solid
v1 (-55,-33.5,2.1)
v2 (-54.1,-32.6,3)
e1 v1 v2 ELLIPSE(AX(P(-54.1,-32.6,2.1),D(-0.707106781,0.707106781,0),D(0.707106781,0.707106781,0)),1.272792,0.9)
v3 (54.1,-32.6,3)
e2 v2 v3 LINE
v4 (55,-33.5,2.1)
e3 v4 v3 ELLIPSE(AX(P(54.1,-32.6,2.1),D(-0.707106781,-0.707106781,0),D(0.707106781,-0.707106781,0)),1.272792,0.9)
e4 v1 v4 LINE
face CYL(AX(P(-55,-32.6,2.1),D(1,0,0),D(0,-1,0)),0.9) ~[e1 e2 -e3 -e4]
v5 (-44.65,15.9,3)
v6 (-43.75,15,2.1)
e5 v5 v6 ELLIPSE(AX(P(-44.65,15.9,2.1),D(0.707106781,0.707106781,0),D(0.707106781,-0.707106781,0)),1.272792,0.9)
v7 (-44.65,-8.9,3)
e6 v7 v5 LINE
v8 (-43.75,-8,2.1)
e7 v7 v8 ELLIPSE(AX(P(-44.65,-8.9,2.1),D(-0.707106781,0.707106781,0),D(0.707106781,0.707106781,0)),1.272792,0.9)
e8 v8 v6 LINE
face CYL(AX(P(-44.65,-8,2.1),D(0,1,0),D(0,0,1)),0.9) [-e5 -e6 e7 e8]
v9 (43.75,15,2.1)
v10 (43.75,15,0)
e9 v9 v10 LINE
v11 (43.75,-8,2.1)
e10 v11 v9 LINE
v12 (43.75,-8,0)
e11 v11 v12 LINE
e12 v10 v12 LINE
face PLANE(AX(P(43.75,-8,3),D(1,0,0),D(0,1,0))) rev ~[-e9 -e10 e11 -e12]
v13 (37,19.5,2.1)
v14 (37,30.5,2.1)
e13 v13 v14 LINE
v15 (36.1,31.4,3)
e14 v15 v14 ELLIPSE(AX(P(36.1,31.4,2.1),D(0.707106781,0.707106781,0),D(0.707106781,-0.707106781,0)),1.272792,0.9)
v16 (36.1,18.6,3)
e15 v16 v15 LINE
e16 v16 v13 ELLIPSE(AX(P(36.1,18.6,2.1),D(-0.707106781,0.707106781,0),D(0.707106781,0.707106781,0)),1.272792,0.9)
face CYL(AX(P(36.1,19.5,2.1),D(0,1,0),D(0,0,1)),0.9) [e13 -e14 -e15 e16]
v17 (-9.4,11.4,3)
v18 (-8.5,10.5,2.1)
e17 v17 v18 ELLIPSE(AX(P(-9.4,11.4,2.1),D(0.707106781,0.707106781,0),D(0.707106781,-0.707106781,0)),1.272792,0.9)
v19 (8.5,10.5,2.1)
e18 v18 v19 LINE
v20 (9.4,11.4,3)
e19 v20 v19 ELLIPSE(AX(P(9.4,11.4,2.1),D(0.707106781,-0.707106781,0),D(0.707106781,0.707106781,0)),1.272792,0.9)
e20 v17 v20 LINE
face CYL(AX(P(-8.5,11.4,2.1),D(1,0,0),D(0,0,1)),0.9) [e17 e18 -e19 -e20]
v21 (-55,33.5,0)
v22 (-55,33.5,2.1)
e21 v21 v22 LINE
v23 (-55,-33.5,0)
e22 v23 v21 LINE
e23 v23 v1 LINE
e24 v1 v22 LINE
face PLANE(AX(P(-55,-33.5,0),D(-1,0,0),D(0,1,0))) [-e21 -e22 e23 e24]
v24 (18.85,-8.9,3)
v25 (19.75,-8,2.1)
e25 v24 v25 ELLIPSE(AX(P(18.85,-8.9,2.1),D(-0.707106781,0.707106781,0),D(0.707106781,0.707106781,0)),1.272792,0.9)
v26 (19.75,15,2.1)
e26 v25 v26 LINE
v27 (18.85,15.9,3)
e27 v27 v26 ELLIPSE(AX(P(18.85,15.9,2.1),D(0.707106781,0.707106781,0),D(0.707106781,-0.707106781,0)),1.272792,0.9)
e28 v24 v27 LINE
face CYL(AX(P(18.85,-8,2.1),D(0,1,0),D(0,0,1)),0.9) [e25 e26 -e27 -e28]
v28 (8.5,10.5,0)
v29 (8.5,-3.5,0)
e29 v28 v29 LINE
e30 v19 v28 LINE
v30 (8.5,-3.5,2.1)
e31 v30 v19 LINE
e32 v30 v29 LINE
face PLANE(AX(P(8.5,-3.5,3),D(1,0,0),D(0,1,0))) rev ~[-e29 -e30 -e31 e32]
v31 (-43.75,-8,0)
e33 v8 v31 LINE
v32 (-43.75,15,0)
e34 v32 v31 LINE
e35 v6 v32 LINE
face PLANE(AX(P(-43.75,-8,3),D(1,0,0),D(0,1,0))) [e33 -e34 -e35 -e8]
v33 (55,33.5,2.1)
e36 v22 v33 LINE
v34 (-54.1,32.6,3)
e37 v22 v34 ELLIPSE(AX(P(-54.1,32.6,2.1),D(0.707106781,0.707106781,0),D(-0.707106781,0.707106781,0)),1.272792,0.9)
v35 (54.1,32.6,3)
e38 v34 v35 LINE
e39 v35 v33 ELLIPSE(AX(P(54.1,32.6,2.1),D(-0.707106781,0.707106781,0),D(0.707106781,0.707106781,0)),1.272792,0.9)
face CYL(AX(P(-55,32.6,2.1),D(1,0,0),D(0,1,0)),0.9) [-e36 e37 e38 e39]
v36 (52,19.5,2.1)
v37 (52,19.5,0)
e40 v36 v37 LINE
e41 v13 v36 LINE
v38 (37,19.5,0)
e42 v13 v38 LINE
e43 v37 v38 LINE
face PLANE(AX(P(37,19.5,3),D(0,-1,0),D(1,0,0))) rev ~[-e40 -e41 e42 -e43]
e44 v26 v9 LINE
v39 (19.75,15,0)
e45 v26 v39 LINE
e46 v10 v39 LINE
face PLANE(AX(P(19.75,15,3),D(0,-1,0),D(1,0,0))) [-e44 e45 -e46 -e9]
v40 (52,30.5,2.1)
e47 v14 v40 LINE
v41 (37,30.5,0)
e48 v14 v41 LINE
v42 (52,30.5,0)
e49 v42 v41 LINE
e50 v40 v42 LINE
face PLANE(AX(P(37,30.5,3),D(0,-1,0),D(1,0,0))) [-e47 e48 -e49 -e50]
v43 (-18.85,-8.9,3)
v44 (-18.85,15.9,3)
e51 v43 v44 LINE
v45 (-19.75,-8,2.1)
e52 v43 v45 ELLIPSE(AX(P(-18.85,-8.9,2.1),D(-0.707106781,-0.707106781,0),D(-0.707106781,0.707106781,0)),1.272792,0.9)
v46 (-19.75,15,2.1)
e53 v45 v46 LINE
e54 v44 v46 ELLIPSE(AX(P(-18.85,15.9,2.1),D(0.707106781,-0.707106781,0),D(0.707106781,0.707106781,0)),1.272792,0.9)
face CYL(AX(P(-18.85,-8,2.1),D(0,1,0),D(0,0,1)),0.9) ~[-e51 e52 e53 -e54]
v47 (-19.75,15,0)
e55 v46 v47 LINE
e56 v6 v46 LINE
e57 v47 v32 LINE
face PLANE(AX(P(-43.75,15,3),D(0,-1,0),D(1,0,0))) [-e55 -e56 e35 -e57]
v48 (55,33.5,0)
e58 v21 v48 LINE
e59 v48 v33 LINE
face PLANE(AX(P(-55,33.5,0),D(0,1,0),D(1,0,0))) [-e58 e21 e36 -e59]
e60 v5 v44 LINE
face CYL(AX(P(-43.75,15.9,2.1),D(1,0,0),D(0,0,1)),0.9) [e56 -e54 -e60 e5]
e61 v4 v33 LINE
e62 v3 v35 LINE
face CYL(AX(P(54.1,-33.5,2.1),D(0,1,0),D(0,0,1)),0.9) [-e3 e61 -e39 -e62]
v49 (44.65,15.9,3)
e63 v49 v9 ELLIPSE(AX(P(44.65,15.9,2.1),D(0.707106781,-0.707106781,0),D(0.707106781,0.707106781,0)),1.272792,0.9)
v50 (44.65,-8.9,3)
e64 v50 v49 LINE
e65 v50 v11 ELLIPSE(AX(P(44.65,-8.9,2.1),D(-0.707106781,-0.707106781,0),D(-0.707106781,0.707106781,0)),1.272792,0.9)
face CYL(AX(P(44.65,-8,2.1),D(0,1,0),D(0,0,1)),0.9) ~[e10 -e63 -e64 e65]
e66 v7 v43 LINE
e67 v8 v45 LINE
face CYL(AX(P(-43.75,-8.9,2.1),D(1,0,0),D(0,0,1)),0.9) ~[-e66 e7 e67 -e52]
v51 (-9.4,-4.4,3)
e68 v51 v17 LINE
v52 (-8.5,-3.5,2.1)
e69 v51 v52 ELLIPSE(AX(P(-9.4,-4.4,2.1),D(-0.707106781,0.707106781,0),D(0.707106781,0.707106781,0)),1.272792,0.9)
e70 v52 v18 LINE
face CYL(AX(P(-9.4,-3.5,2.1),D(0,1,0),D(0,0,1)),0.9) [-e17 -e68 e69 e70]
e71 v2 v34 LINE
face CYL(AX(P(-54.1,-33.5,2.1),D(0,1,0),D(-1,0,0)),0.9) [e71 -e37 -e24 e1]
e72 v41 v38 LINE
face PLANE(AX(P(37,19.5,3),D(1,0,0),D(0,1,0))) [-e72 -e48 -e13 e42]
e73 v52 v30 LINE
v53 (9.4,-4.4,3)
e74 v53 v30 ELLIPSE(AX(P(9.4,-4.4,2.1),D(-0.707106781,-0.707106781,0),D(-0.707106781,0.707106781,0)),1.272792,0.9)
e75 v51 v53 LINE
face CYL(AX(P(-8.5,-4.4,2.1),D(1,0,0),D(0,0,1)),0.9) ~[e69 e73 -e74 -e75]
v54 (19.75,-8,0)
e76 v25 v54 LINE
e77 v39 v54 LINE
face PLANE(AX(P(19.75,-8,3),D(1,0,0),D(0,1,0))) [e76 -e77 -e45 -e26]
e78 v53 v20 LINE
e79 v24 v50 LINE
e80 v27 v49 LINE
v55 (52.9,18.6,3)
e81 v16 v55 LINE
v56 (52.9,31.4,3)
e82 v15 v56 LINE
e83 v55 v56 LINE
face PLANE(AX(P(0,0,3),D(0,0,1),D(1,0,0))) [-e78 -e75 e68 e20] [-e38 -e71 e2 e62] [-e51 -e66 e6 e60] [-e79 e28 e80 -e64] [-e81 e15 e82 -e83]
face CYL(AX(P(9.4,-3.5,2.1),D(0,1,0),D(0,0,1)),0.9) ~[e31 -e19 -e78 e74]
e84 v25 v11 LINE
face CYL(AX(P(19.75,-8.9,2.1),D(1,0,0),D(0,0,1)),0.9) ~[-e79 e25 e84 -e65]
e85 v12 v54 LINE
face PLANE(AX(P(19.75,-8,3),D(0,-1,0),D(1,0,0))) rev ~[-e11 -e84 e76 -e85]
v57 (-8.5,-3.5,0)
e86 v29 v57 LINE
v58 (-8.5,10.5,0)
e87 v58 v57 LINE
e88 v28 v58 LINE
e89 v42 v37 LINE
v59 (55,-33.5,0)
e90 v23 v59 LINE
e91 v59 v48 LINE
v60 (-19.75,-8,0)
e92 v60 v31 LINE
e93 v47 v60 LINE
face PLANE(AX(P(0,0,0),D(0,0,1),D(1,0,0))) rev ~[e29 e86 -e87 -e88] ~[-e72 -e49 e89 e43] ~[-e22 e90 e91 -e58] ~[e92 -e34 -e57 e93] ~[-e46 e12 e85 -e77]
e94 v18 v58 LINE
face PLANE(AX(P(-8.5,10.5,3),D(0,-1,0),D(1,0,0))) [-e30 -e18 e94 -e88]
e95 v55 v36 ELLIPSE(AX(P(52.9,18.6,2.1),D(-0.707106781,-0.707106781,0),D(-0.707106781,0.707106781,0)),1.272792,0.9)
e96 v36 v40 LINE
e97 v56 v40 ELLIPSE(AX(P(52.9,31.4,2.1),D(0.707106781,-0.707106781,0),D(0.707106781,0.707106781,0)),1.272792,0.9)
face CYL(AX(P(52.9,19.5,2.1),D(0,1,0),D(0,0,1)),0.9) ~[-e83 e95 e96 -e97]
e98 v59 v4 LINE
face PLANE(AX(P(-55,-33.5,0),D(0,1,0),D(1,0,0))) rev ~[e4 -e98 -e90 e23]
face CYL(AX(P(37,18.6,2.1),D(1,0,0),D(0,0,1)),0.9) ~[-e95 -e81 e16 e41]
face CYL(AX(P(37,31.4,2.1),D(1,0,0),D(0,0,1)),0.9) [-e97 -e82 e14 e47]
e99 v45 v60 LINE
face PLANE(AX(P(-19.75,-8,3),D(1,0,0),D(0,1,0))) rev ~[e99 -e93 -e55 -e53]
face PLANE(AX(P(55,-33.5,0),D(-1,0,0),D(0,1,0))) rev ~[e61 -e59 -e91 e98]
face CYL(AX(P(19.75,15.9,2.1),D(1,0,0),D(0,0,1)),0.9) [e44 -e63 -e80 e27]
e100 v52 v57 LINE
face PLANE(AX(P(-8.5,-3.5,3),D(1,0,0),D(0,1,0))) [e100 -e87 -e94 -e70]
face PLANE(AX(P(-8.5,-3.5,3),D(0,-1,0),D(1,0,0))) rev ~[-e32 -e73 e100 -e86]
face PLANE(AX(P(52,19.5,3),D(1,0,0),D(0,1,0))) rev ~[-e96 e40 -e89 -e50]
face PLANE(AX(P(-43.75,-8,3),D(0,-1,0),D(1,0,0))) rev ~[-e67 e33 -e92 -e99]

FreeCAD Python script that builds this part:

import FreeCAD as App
import Part
import Sketcher

V = App.Vector
Q = App.Units.Quantity


def edges_at(feature, points):
    """Names of the edges that pass closest to the given points."""
    edges = feature.Shape.Edges
    near = lambda p: min(range(len(edges)), key=lambda i: edges[i].distToShape(Part.Vertex(*p))[0])
    return sorted({f"Edge{near(p) + 1}" for p in points})


def add_polygon(sketch, points):
    """Adds a closed chain of lines whose ends are joined by coincident constraints."""
    first, n = sketch.GeometryCount, len(points)
    for a, b in zip(points, points[1:] + points[:1]):
        sketch.addGeometry(Part.LineSegment(App.Vector(*a, 0), App.Vector(*b, 0)), False)
    for i in range(n):
        sketch.addConstraint(Sketcher.Constraint("Coincident", first + i, 2, first + (i + 1) % n, 1))

doc = App.newDocument("Part")
body = doc.addObject("PartDesign::Body", "Body")

# Sketch on XY plane
sketch1 = doc.addObject("Sketcher::SketchObject", "Sketch")
body.addObject(sketch1)
sketch1.AttachmentSupport = (doc.XY_Plane, [""])
sketch1.MapMode = "FlatFace"
add_polygon(sketch1, [(-55, 34), (-55, -34), (55, -34), (55, 34)])  # lines 0-3
sketch1.addConstraint([
    Sketcher.Constraint("Vertical", 0),
    Sketcher.Constraint("Horizontal", 1),
    Sketcher.Constraint("Vertical", 2),
    Sketcher.Constraint("Horizontal", 3),
    Sketcher.Constraint("Symmetric", 0, 2, 2, 2, -1, 1),
    Sketcher.Constraint("DistanceX", 1, 1, 1, 2, Q("110 mm")),
    Sketcher.Constraint("DistanceY", 0, 2, 0, 1, Q("67 mm")),
])
pad1 = doc.addObject("PartDesign::Pad", "Pad")
body.addObject(pad1)
pad1.Profile = sketch1
pad1.Length = 3

# Sketch on XY plane
sketch2 = doc.addObject("Sketcher::SketchObject", "Sketch001")
body.addObject(sketch2)
sketch2.AttachmentSupport = (doc.XY_Plane, [""])
sketch2.MapMode = "FlatFace"
sketch2.AttachmentOffset = App.Placement(V(0, 0, 3), App.Rotation())
add_polygon(sketch2, [(-44, 15), (-44, -8), (-20, -8), (-20, 15)])  # lines 0-3
sketch2.addConstraint([
    Sketcher.Constraint("Vertical", 0),
    Sketcher.Constraint("Horizontal", 1),
    Sketcher.Constraint("Vertical", 2),
    Sketcher.Constraint("Horizontal", 3),
    Sketcher.Constraint("DistanceX", 1, 1, 1, 2, Q("24 mm")),
    Sketcher.Constraint("DistanceY", 0, 2, 0, 1, Q("23 mm")),
    Sketcher.Constraint("DistanceY", 0, 2, -1, 1, Q("8 mm")),
    Sketcher.Constraint("DistanceX", 0, 2, -1, 1, Q("43.75 mm")),
])
pocket1 = doc.addObject("PartDesign::Pocket", "Pocket")
body.addObject(pocket1)
pocket1.Profile = sketch2
pocket1.Type = "UpToFirst"

# Sketch on XY plane
sketch3 = doc.addObject("Sketcher::SketchObject", "Sketch002")
body.addObject(sketch3)
sketch3.AttachmentSupport = (doc.XY_Plane, [""])
sketch3.MapMode = "FlatFace"
sketch3.AttachmentOffset = App.Placement(V(0, 0, 3), App.Rotation())
add_polygon(sketch3, [(-8, 10), (-8, -4), (8, -4), (8, 10)])  # lines 0-3
sketch3.addConstraint([
    Sketcher.Constraint("Vertical", 0),
    Sketcher.Constraint("Horizontal", 1),
    Sketcher.Constraint("Vertical", 2),
    Sketcher.Constraint("Horizontal", 3),
    Sketcher.Constraint("DistanceX", 1, 1, 1, 2, Q("17 mm")),
    Sketcher.Constraint("DistanceY", 0, 2, 0, 1, Q("14 mm")),
    Sketcher.Constraint("DistanceX", 0, 2, -1, 1, Q("8.5 mm")),
    Sketcher.Constraint("DistanceY", 0, 2, -1, 1, Q("3.5 mm")),
])
pocket2 = doc.addObject("PartDesign::Pocket", "Pocket001")
body.addObject(pocket2)
pocket2.Profile = sketch3
pocket2.Type = "UpToFirst"

# Sketch on XY plane
sketch4 = doc.addObject("Sketcher::SketchObject", "Sketch003")
body.addObject(sketch4)
sketch4.AttachmentSupport = (doc.XY_Plane, [""])
sketch4.MapMode = "FlatFace"
sketch4.AttachmentOffset = App.Placement(V(0, 0, 3), App.Rotation())
add_polygon(sketch4, [(20, 15), (20, -8), (44, -8), (44, 15)])  # lines 0-3
sketch4.addConstraint([
    Sketcher.Constraint("Vertical", 0),
    Sketcher.Constraint("Horizontal", 1),
    Sketcher.Constraint("Vertical", 2),
    Sketcher.Constraint("Horizontal", 3),
    Sketcher.Constraint("DistanceX", 1, 1, 1, 2, Q("24 mm")),
    Sketcher.Constraint("DistanceY", 0, 2, 0, 1, Q("23 mm")),
    Sketcher.Constraint("DistanceY", 0, 2, -1, 1, Q("8 mm")),
    Sketcher.Constraint("DistanceX", -1, 1, 0, 2, Q("19.75 mm")),
])
pocket3 = doc.addObject("PartDesign::Pocket", "Pocket002")
body.addObject(pocket3)
pocket3.Profile = sketch4
pocket3.Type = "UpToFirst"

# Sketch on XY plane
sketch5 = doc.addObject("Sketcher::SketchObject", "Sketch004")
body.addObject(sketch5)
sketch5.AttachmentSupport = (doc.XY_Plane, [""])
sketch5.MapMode = "FlatFace"
sketch5.AttachmentOffset = App.Placement(V(0, 0, 3), App.Rotation())
add_polygon(sketch5, [(37, 30), (37, 20), (52, 20), (52, 30)])  # lines 0-3
sketch5.addConstraint([
    Sketcher.Constraint("Vertical", 0),
    Sketcher.Constraint("Horizontal", 1),
    Sketcher.Constraint("Vertical", 2),
    Sketcher.Constraint("Horizontal", 3),
    Sketcher.Constraint("DistanceX", 1, 1, 1, 2, Q("15 mm")),
    Sketcher.Constraint("DistanceY", 0, 2, 0, 1, Q("11 mm")),
    Sketcher.Constraint("DistanceX", -1, 1, 0, 2, Q("37 mm")),
    Sketcher.Constraint("DistanceY", -1, 1, 0, 2, Q("19.5 mm")),
])
pocket4 = doc.addObject("PartDesign::Pocket", "Pocket003")
body.addObject(pocket4)
pocket4.Profile = sketch5
pocket4.Type = "UpToFirst"
doc.recompute()

fillet = doc.addObject("PartDesign::Fillet", "Fillet")
body.addObject(fillet)
fillet.Base = (pocket4, edges_at(pocket4, [
    (-55, 0, 3),
    (0, -33.5, 3),
    (-19.75, 3.5, 3),
    (-31.75, 15, 3),
    (-43.75, 3.5, 3),
    (-31.75, -8, 3),
    (8.5, 3.5, 3),
    (0, 10.5, 3),
    (-8.5, 3.5, 3),
    (0, -3.5, 3),
    (43.75, 3.5, 3),
    (31.75, 15, 3),
    (19.75, 3.5, 3),
    (31.75, -8, 3),
    (52, 25, 3),
    (44.5, 30.5, 3),
    (37, 25, 3),
    (44.5, 19.5, 3),
    (55, 0, 3),
    (0, 33.5, 3),
]))
fillet.Radius = 0.9

doc.recompute()
